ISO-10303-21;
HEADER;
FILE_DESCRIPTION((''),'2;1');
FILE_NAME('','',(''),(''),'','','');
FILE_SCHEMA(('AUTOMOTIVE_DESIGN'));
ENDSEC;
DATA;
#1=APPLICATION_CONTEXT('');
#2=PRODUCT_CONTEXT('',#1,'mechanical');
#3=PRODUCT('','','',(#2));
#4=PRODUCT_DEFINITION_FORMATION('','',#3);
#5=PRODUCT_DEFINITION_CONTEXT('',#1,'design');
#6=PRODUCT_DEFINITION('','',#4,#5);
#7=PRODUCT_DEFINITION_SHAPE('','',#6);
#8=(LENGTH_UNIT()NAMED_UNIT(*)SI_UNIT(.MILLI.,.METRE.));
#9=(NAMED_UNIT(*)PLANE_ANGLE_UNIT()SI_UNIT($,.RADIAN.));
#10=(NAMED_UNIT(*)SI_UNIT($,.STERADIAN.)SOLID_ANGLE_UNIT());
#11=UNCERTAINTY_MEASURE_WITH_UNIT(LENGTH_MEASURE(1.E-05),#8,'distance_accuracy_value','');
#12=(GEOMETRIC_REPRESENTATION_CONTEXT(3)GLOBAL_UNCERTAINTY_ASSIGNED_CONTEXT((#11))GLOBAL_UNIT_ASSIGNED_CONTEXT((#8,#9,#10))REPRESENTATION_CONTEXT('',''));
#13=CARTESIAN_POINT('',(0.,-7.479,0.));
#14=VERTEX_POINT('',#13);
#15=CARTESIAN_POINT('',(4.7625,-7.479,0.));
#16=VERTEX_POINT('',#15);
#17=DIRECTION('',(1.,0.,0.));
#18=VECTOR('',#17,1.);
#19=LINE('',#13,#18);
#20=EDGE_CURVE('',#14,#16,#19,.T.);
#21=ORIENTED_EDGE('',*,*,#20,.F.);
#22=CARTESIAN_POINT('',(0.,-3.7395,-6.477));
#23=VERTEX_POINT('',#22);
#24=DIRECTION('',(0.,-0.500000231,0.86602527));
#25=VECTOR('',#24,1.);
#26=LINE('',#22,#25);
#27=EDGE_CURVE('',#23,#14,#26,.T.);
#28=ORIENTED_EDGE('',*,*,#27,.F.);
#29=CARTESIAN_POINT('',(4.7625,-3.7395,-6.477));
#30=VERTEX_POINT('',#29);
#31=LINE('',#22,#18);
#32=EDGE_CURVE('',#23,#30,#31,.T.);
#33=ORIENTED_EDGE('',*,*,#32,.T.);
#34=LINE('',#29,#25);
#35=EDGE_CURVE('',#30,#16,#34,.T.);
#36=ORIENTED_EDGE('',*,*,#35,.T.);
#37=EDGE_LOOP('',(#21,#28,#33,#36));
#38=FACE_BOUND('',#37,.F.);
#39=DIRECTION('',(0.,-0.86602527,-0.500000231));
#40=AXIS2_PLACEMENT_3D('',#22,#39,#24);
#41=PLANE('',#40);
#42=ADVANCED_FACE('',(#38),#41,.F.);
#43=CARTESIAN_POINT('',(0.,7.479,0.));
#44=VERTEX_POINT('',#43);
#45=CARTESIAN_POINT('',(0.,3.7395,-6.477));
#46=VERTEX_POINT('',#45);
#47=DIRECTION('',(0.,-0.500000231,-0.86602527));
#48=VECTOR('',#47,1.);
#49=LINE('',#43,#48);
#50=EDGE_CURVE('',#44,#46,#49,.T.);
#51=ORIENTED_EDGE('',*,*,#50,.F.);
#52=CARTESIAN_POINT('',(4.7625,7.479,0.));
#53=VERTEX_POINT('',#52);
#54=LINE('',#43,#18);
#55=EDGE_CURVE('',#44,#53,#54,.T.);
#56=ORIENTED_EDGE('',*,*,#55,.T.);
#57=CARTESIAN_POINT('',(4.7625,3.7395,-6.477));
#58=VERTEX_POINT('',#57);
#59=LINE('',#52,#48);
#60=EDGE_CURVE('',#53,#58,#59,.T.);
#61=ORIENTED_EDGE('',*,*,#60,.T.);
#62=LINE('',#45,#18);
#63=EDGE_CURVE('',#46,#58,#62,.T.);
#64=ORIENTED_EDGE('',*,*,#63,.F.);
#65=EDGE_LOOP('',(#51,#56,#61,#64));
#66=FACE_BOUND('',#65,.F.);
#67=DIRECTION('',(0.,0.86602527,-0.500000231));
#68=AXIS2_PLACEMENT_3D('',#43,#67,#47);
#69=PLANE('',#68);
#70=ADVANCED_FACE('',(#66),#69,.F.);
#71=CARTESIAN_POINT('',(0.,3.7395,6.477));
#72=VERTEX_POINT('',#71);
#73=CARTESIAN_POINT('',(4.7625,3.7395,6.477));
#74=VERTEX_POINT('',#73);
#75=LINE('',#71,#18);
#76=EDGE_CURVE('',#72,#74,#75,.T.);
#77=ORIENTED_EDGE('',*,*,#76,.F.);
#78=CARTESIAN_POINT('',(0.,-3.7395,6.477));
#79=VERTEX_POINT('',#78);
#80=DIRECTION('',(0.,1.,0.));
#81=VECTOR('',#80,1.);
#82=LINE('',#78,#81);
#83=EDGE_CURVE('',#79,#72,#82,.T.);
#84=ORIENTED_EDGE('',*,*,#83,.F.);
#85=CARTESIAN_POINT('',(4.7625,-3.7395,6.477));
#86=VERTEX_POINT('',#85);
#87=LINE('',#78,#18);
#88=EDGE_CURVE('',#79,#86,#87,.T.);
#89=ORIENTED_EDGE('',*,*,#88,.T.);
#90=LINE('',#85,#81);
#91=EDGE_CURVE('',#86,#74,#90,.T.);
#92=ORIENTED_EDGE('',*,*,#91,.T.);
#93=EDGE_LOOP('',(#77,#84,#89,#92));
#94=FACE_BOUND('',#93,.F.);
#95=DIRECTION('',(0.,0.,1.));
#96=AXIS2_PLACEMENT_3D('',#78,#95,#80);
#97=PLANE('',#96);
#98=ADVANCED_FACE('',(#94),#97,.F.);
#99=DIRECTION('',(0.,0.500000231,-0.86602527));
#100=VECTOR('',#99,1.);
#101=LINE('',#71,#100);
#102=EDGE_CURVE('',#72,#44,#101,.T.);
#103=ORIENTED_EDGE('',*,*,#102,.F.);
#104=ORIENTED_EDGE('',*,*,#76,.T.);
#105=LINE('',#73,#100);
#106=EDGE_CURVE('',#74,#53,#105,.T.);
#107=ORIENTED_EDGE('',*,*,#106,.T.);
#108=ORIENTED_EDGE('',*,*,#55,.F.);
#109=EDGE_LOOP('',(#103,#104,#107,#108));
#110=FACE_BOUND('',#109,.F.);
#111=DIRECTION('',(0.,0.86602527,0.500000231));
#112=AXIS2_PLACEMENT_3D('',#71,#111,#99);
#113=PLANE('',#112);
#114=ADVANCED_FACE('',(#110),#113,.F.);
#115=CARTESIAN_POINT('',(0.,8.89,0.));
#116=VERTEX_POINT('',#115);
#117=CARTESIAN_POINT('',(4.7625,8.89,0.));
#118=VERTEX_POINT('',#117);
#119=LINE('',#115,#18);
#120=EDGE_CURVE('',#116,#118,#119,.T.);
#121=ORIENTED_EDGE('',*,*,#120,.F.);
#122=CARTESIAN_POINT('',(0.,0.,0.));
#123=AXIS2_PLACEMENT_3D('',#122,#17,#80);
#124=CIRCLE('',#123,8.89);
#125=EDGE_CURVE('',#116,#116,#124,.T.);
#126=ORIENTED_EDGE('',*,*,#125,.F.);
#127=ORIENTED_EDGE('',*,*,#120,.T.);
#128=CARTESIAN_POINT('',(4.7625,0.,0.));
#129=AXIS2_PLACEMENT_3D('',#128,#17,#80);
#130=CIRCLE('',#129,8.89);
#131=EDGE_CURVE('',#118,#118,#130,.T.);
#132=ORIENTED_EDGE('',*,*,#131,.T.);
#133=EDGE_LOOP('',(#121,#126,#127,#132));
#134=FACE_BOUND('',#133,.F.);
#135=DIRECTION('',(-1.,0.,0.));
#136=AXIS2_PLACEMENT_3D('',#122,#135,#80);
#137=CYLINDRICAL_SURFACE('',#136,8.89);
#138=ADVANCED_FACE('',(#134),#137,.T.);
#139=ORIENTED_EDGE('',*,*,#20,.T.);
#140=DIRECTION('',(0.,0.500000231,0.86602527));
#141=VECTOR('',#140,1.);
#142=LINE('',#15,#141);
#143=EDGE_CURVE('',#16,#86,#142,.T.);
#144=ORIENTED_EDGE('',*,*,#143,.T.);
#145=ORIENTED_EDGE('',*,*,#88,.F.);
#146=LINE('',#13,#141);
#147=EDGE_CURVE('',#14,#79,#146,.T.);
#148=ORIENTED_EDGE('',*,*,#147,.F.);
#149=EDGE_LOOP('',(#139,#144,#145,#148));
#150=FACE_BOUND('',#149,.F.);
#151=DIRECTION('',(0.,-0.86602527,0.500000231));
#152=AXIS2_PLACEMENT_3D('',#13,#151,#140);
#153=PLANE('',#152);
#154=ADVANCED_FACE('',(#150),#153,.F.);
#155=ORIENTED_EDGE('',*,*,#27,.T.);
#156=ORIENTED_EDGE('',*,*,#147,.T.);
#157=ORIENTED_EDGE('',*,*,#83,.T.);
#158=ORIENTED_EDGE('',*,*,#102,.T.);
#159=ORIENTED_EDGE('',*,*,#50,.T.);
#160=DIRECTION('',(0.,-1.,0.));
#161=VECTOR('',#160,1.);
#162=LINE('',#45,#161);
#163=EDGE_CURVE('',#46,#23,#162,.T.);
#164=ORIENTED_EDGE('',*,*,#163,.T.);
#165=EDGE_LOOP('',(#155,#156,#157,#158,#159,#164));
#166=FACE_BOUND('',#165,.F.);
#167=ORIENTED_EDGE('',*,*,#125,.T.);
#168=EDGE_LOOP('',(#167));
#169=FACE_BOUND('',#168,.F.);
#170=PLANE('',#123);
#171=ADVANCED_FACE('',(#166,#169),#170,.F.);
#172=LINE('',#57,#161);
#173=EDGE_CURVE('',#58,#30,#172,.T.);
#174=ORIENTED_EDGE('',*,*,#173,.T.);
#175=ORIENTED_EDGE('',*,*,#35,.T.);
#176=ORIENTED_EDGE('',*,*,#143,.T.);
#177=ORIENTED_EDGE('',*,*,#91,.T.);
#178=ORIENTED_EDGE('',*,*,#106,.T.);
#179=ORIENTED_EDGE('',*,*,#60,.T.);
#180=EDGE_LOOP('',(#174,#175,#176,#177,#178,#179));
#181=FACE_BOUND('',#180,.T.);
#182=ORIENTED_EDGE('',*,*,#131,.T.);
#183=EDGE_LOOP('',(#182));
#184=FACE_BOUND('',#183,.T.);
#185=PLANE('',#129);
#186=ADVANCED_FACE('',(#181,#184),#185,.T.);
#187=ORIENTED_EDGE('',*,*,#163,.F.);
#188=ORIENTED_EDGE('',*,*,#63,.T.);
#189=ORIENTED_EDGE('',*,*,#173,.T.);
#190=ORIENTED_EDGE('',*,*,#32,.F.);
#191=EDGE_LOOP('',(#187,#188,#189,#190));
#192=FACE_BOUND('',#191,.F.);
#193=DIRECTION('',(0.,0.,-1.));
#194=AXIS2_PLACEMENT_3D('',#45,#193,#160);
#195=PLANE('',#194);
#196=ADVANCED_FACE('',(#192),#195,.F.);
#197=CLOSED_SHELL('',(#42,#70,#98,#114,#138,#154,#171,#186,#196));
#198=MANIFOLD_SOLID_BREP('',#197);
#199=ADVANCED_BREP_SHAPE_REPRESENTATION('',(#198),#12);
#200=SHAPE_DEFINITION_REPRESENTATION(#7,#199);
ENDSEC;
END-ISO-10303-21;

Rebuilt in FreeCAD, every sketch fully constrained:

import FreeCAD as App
import Part
import Sketcher
from FreeCAD import Vector
Q = App.Units.Quantity

doc = App.newDocument("Part")
body = doc.addObject("PartDesign::Body", "Body")

# Sketch on YZ plane
sketch1 = doc.addObject("Sketcher::SketchObject", "Sketch")
body.addObject(sketch1)
sketch1.AttachmentSupport = (doc.YZ_Plane, [""])
sketch1.MapMode = "FlatFace"
sketch1.addGeometry([
    Part.Circle(Vector(0, 0, 0), Vector(0, 0, 1), 9),  # 0
    Part.LineSegment(Vector(-7, 0, 0), Vector(-4, 6, 0)),  # 1
    Part.LineSegment(Vector(-4, 6, 0), Vector(4, 6, 0)),  # 2
    Part.LineSegment(Vector(4, 6, 0), Vector(7, 0, 0)),  # 3
    Part.LineSegment(Vector(7, 0, 0), Vector(4, -6, 0)),  # 4
    Part.LineSegment(Vector(4, -6, 0), Vector(-4, -6, 0)),  # 5
    Part.LineSegment(Vector(-4, -6, 0), Vector(-7, 0, 0)),  # 6
], False)
sketch1.addConstraint([
    Sketcher.Constraint("Coincident", 1, 2, 2, 1),
    Sketcher.Constraint("Coincident", 2, 2, 3, 1),
    Sketcher.Constraint("Coincident", 3, 2, 4, 1),
    Sketcher.Constraint("Coincident", 4, 2, 5, 1),
    Sketcher.Constraint("Coincident", 5, 2, 6, 1),
    Sketcher.Constraint("Coincident", 6, 2, 1, 1),
    Sketcher.Constraint("Horizontal", 2),
    Sketcher.Constraint("Horizontal", 5),
    Sketcher.Constraint("Coincident", 0, 3, -1, 1),
    Sketcher.Constraint("Symmetric", 1, 2, 4, 2, -1, 1),
    Sketcher.Constraint("Symmetric", 3, 2, 6, 2, -1, 1),
    Sketcher.Constraint("PointOnObject", 3, 2, -1),
    Sketcher.Constraint("Parallel", 3, 6),
    Sketcher.Constraint("Vertical", 2, 2, 4, 2),
    Sketcher.Constraint("Diameter", 0, Q("0.7 in")),
    Sketcher.Constraint("DistanceY", 4, 2, 2, 2, Q("0.51 in")),
    Sketcher.Constraint("Angle", 1, Q("60 deg")),
    Sketcher.Constraint("DistanceX", 2, 1, 2, 2, Q("7.479 mm")),
])
pad1 = doc.addObject("PartDesign::Pad", "Pad")
body.addObject(pad1)
pad1.Profile = sketch1
pad1.Length = Q("0.1875 in")

doc.recompute()
